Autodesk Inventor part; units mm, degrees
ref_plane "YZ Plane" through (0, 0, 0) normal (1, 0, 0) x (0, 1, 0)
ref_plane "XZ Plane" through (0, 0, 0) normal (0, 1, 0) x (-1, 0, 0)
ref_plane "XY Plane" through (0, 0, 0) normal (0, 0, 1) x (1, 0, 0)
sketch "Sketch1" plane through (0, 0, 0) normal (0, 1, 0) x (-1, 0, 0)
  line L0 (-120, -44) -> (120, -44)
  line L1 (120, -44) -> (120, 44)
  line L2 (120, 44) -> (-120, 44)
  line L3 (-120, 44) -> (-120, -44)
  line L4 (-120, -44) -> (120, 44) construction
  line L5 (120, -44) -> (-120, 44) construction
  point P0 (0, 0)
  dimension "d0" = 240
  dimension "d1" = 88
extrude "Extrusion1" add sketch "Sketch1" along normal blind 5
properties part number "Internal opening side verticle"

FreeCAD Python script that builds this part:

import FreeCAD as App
import Part
import Sketcher

V = App.Vector

doc = App.newDocument("Part")
body = doc.addObject("PartDesign::Body", "Body")

sketch1 = body.newObject("Sketcher::SketchObject", "Sketch")
sketch1.AttachmentSupport = (doc.getObject("XZ_Plane"), [""])
sketch1.MapMode = "FlatFace"
sketch1.addGeometry([
    Part.LineSegment(V(120, 44, 0), V(120, -44, 0)),
    Part.LineSegment(V(120, -44, 0), V(-120, -44, 0)),
    Part.LineSegment(V(-120, -44, 0), V(-120, 44, 0)),
    Part.LineSegment(V(-120, 44, 0), V(120, 44, 0)),
], False)
sketch1.addConstraint([
    Sketcher.Constraint("Coincident", 0, 2, 1, 1),
    Sketcher.Constraint("Coincident", 1, 2, 2, 1),
    Sketcher.Constraint("Coincident", 2, 2, 3, 1),
    Sketcher.Constraint("Coincident", 3, 2, 0, 1),
    Sketcher.Constraint("Vertical", 0),
    Sketcher.Constraint("Horizontal", 1),
    Sketcher.Constraint("Vertical", 2),
    Sketcher.Constraint("Horizontal", 3),
    Sketcher.Constraint("Symmetric", 0, 2, 2, 2, -1, 1),
    Sketcher.Constraint("DistanceX", 1, 2, 1, 1, 240.0),
    Sketcher.Constraint("DistanceY", 0, 2, 0, 1, 88.0),
])
pad1 = body.newObject("PartDesign::Pad", "Pad")
pad1.Profile = sketch1
pad1.Length = 5
pad1.Reversed = True

doc.recompute()
